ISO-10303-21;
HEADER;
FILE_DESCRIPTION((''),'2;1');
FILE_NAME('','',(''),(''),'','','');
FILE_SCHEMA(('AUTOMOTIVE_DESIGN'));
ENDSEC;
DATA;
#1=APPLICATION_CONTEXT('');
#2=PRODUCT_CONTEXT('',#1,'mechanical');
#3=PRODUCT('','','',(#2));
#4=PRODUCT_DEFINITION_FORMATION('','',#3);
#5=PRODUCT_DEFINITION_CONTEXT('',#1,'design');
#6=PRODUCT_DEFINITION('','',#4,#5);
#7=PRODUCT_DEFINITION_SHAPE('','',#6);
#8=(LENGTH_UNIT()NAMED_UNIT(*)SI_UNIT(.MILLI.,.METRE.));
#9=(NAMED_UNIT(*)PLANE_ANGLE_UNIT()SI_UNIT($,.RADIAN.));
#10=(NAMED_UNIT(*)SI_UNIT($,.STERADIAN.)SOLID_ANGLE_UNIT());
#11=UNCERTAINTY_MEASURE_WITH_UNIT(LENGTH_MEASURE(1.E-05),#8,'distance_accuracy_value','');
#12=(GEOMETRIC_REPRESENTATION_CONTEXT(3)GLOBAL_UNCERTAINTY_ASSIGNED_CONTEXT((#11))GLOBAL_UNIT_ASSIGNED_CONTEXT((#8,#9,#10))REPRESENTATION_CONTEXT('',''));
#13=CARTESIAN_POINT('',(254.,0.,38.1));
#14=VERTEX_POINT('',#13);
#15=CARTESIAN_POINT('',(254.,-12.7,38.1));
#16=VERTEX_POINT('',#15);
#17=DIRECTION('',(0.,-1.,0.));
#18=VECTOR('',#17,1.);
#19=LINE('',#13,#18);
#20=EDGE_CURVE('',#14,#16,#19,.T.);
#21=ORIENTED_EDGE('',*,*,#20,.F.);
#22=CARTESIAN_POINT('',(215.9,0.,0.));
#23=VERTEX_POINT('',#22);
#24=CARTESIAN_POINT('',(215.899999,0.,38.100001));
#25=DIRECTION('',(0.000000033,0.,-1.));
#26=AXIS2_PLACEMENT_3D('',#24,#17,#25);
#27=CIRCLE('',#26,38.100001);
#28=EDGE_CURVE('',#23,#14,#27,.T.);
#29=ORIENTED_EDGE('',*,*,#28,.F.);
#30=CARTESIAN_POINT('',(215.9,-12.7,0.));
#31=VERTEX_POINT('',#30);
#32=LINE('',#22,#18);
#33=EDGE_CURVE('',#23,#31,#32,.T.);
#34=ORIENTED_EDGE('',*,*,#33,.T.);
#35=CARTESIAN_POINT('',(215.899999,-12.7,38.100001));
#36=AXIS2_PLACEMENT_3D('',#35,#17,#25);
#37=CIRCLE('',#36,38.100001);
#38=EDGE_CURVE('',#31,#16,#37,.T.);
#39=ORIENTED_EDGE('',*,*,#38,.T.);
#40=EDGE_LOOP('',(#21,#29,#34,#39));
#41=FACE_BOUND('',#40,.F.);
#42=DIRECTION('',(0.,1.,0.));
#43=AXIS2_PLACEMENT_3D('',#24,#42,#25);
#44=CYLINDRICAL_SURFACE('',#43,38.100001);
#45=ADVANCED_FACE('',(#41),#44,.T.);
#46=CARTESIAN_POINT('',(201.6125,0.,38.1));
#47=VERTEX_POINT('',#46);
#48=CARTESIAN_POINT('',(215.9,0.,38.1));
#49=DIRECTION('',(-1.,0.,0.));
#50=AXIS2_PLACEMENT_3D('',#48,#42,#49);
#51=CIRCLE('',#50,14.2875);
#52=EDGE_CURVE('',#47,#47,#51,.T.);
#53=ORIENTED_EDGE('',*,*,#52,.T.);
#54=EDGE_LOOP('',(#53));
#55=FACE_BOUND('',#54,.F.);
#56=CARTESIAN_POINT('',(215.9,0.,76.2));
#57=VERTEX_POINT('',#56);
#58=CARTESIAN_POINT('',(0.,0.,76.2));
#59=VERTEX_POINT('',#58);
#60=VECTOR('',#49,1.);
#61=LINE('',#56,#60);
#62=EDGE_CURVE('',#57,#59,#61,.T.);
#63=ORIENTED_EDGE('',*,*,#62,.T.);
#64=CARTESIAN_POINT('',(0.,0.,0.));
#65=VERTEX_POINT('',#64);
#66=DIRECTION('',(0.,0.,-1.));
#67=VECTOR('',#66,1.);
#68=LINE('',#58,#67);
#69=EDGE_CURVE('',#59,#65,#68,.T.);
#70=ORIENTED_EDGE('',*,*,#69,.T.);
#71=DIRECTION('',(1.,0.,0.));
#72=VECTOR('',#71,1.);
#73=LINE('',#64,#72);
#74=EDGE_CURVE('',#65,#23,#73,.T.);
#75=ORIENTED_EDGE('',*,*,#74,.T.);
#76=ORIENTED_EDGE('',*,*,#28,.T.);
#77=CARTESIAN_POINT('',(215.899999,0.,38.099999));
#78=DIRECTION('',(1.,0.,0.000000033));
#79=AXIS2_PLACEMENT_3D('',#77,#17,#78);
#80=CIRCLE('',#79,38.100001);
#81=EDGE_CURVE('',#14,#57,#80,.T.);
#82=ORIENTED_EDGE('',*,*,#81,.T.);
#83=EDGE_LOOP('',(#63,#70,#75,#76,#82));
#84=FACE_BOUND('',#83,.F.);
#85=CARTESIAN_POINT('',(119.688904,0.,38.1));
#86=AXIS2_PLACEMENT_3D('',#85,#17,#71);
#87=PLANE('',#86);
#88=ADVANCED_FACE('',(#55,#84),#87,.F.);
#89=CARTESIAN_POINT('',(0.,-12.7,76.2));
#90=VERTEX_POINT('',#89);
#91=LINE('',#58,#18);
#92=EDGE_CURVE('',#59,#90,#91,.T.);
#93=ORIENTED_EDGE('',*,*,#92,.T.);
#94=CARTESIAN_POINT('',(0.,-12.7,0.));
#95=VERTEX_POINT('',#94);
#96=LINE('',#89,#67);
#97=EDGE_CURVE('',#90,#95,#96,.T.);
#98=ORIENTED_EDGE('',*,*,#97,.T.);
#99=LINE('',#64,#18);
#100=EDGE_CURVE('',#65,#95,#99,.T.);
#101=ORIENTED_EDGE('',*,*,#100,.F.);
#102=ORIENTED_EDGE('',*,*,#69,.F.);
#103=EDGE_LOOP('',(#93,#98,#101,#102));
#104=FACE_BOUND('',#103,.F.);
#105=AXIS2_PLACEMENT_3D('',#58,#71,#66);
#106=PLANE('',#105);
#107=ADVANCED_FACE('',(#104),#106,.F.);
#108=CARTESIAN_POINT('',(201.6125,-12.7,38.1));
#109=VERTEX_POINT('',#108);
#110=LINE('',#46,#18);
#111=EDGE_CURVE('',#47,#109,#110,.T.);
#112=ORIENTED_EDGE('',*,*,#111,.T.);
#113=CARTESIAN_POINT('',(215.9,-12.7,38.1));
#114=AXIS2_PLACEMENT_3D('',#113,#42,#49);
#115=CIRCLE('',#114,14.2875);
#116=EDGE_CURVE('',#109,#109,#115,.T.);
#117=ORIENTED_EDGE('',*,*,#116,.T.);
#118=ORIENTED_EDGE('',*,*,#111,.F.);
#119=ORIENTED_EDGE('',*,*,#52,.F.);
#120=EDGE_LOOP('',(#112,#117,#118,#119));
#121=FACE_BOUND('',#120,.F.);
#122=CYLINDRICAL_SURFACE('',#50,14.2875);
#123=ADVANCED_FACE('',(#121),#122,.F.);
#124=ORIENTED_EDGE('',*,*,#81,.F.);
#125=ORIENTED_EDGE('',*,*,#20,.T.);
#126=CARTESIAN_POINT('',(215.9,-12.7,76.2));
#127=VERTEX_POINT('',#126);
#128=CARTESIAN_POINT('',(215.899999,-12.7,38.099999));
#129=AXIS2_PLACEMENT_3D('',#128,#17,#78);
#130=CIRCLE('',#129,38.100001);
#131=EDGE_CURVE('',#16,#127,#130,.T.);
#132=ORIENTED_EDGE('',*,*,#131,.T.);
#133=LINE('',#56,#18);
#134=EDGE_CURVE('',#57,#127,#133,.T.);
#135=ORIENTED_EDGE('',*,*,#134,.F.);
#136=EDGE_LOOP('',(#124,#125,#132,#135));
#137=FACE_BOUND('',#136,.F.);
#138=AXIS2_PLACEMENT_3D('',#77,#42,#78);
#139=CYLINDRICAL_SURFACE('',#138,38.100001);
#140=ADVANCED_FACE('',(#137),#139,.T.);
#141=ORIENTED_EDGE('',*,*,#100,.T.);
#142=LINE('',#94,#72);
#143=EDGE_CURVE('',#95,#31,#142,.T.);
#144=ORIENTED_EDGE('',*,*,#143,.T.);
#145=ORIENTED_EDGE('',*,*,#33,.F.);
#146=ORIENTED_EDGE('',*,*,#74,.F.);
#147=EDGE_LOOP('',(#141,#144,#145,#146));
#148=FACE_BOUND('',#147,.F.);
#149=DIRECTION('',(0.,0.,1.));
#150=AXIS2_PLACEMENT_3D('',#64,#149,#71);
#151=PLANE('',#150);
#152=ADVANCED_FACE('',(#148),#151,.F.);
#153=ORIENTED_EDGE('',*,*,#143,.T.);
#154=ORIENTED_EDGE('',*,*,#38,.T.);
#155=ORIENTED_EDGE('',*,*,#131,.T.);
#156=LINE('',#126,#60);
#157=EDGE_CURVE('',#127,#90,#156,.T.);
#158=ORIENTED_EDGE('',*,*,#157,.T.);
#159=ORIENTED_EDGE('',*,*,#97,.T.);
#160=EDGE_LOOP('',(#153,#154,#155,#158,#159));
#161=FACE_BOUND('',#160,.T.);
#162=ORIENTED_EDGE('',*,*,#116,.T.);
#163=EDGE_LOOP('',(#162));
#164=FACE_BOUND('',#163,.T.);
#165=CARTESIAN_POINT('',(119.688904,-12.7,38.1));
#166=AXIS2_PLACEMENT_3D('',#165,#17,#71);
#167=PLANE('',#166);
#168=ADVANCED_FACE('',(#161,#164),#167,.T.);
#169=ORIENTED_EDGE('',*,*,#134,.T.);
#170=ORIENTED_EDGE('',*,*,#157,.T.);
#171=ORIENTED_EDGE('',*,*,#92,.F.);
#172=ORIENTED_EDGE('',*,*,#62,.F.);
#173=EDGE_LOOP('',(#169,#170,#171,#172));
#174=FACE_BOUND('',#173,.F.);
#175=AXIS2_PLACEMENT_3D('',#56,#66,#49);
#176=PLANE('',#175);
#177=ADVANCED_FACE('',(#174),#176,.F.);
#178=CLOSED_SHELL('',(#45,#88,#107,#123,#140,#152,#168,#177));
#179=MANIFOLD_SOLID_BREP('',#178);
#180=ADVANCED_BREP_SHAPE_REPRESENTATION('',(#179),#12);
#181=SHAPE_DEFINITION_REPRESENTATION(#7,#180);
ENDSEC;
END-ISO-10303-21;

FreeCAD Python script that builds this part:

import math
import FreeCAD as App
import Part
import Sketcher

V = App.Vector
Q = App.Units.Quantity

doc = App.newDocument("Part")
body = doc.addObject("PartDesign::Body", "Body")

# Sketch on XZ plane
sketch1 = doc.addObject("Sketcher::SketchObject", "Sketch")
body.addObject(sketch1)
sketch1.AttachmentSupport = (doc.XZ_Plane, [""])
sketch1.MapMode = "FlatFace"
sketch1.addGeometry(Part.LineSegment(V(0, 0, 0), V(216, 0, 0)), False)
sketch1.addGeometry(Part.ArcOfCircle(Part.Circle(V(216, 38, 0), V(0, 0, 1), 38), math.radians(-90), math.radians(0)), False)
sketch1.addGeometry(Part.ArcOfCircle(Part.Circle(V(216, 38, 0), V(0, 0, 1), 38), math.radians(0), math.radians(90)), False)
sketch1.addGeometry(Part.LineSegment(V(216, 76, 0), V(0, 76, 0)), False)
sketch1.addGeometry(Part.LineSegment(V(0, 76, 0), V(0, 0, 0)), False)
sketch1.addGeometry(Part.Circle(V(216, 38, 0), V(0, 0, 1), 14), False)
sketch1.addConstraint(Sketcher.Constraint("Tangent", 0, 2, 1, 1))
sketch1.addConstraint(Sketcher.Constraint("Tangent", 1, 2, 2, 1))
sketch1.addConstraint(Sketcher.Constraint("Tangent", 2, 2, 3, 1))
sketch1.addConstraint(Sketcher.Constraint("Coincident", 3, 2, 4, 1))
sketch1.addConstraint(Sketcher.Constraint("Coincident", 4, 2, 0, 1))
sketch1.addConstraint(Sketcher.Constraint("Horizontal", 0))
sketch1.addConstraint(Sketcher.Constraint("Horizontal", 3))
sketch1.addConstraint(Sketcher.Constraint("Vertical", 4))
sketch1.addConstraint(Sketcher.Constraint("Coincident", 4, 2, -1, 1))
sketch1.addConstraint(Sketcher.Constraint("Coincident", 5, 3, 1, 3))
sketch1.addConstraint(Sketcher.Constraint("Equal", 1, 2))
sketch1.addConstraint(Sketcher.Constraint("Horizontal", 5, 3, 1, 2))
sketch1.addConstraint(Sketcher.Constraint("Radius", 1, Q("1.5 in")))
sketch1.addConstraint(Sketcher.Constraint("Diameter", 5, Q("1.125 in")))
sketch1.addConstraint(Sketcher.Constraint("DistanceX", 0, 1, 0, 2, Q("8.5 in")))
pad1 = doc.addObject("PartDesign::Pad", "Pad")
body.addObject(pad1)
pad1.Profile = sketch1
pad1.Length = Q("0.5 in")

doc.recompute()
